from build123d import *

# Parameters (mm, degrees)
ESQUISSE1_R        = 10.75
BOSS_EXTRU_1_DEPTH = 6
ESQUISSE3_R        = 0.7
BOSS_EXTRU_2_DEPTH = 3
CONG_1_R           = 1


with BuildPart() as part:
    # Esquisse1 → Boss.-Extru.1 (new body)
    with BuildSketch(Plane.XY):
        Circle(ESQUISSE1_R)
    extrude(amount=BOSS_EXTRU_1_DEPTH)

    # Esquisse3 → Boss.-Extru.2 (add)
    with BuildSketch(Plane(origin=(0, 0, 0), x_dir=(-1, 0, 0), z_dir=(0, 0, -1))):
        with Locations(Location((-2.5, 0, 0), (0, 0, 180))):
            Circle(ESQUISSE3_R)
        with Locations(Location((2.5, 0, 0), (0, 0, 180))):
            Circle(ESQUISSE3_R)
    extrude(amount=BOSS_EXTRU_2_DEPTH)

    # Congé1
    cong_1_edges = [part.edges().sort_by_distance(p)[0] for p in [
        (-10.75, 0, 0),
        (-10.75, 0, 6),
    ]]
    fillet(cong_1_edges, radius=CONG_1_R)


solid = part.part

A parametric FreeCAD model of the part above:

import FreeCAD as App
import Part
import Sketcher


def edges_at(feature, points):
    """Names of the edges that pass closest to the given points."""
    edges = feature.Shape.Edges
    near = lambda p: min(range(len(edges)), key=lambda i: edges[i].distToShape(Part.Vertex(*p))[0])
    return sorted({f"Edge{near(p) + 1}" for p in points})

doc = App.newDocument("Part")
params = doc.addObject("Spreadsheet::Sheet", "Params")
for row, (alias, value) in enumerate([
    ("sketch1_diameter", "21.5 mm"),
    ("pad1_length", "6 mm"),
    ("sketch2_diameter", "1.4 mm"),
    ("pad2_length", "3 mm"),
    ("fillet_radius", "1 mm"),
], start=1):
    params.set(f"A{row}", alias)
    params.set(f"B{row}", "=" + value)
    params.setAlias(f"B{row}", alias)

body = doc.addObject("PartDesign::Body", "Body")

# Sketch on XY plane
sketch1 = body.newObject("Sketcher::SketchObject", "Sketch")
sketch1.AttachmentSupport = (doc.getObject("XY_Plane"), [""])
sketch1.MapMode = "FlatFace"
sketch1.addGeometry(Part.Circle(App.Vector(0, 0, 0), App.Vector(0, 0, 1), 10.75), False)
sketch1.addConstraint([
    Sketcher.Constraint("Coincident", 0, 3, -1, 1),
    Sketcher.Constraint("Diameter", 0, 21.5),
])
sketch1.setExpression("Constraints[1]", "Params.sketch1_diameter")
pad1 = body.newObject("PartDesign::Pad", "Pad")
pad1.Profile = sketch1
pad1.setExpression("Length", "Params.pad1_length")

# Sketch on XY plane
sketch2 = body.newObject("Sketcher::SketchObject", "Sketch001")
sketch2.AttachmentSupport = (doc.getObject("XY_Plane"), [""])
sketch2.MapMode = "FlatFace"
sketch2.addGeometry([
    Part.Circle(App.Vector(2.5, 0, 0), App.Vector(0, 0, 1), 0.7),
    Part.Circle(App.Vector(-2.5, 0, 0), App.Vector(0, 0, 1), 0.7),
], False)
sketch2.addConstraint([
    Sketcher.Constraint("Equal", 0, 1),
    Sketcher.Constraint("Symmetric", 0, 3, 1, 3, -1, 1),
    Sketcher.Constraint("PointOnObject", 0, 3, -1),
    Sketcher.Constraint("Diameter", 0, 1.4),
    Sketcher.Constraint("DistanceX", 1, 3, 0, 3, 5.0),
])
sketch2.setExpression("Constraints[3]", "Params.sketch2_diameter")
pad2 = body.newObject("PartDesign::Pad", "Pad001")
pad2.Profile = sketch2
pad2.setExpression("Length", "Params.pad2_length")
pad2.Reversed = True
doc.recompute()

fillet = body.newObject("PartDesign::Fillet", "Fillet")
fillet.Base = (pad2, edges_at(pad2, [(-10.75, 0, 0), (-10.75, 0, 6)]))
fillet.setExpression("Radius", "Params.fillet_radius")

doc.recompute()
